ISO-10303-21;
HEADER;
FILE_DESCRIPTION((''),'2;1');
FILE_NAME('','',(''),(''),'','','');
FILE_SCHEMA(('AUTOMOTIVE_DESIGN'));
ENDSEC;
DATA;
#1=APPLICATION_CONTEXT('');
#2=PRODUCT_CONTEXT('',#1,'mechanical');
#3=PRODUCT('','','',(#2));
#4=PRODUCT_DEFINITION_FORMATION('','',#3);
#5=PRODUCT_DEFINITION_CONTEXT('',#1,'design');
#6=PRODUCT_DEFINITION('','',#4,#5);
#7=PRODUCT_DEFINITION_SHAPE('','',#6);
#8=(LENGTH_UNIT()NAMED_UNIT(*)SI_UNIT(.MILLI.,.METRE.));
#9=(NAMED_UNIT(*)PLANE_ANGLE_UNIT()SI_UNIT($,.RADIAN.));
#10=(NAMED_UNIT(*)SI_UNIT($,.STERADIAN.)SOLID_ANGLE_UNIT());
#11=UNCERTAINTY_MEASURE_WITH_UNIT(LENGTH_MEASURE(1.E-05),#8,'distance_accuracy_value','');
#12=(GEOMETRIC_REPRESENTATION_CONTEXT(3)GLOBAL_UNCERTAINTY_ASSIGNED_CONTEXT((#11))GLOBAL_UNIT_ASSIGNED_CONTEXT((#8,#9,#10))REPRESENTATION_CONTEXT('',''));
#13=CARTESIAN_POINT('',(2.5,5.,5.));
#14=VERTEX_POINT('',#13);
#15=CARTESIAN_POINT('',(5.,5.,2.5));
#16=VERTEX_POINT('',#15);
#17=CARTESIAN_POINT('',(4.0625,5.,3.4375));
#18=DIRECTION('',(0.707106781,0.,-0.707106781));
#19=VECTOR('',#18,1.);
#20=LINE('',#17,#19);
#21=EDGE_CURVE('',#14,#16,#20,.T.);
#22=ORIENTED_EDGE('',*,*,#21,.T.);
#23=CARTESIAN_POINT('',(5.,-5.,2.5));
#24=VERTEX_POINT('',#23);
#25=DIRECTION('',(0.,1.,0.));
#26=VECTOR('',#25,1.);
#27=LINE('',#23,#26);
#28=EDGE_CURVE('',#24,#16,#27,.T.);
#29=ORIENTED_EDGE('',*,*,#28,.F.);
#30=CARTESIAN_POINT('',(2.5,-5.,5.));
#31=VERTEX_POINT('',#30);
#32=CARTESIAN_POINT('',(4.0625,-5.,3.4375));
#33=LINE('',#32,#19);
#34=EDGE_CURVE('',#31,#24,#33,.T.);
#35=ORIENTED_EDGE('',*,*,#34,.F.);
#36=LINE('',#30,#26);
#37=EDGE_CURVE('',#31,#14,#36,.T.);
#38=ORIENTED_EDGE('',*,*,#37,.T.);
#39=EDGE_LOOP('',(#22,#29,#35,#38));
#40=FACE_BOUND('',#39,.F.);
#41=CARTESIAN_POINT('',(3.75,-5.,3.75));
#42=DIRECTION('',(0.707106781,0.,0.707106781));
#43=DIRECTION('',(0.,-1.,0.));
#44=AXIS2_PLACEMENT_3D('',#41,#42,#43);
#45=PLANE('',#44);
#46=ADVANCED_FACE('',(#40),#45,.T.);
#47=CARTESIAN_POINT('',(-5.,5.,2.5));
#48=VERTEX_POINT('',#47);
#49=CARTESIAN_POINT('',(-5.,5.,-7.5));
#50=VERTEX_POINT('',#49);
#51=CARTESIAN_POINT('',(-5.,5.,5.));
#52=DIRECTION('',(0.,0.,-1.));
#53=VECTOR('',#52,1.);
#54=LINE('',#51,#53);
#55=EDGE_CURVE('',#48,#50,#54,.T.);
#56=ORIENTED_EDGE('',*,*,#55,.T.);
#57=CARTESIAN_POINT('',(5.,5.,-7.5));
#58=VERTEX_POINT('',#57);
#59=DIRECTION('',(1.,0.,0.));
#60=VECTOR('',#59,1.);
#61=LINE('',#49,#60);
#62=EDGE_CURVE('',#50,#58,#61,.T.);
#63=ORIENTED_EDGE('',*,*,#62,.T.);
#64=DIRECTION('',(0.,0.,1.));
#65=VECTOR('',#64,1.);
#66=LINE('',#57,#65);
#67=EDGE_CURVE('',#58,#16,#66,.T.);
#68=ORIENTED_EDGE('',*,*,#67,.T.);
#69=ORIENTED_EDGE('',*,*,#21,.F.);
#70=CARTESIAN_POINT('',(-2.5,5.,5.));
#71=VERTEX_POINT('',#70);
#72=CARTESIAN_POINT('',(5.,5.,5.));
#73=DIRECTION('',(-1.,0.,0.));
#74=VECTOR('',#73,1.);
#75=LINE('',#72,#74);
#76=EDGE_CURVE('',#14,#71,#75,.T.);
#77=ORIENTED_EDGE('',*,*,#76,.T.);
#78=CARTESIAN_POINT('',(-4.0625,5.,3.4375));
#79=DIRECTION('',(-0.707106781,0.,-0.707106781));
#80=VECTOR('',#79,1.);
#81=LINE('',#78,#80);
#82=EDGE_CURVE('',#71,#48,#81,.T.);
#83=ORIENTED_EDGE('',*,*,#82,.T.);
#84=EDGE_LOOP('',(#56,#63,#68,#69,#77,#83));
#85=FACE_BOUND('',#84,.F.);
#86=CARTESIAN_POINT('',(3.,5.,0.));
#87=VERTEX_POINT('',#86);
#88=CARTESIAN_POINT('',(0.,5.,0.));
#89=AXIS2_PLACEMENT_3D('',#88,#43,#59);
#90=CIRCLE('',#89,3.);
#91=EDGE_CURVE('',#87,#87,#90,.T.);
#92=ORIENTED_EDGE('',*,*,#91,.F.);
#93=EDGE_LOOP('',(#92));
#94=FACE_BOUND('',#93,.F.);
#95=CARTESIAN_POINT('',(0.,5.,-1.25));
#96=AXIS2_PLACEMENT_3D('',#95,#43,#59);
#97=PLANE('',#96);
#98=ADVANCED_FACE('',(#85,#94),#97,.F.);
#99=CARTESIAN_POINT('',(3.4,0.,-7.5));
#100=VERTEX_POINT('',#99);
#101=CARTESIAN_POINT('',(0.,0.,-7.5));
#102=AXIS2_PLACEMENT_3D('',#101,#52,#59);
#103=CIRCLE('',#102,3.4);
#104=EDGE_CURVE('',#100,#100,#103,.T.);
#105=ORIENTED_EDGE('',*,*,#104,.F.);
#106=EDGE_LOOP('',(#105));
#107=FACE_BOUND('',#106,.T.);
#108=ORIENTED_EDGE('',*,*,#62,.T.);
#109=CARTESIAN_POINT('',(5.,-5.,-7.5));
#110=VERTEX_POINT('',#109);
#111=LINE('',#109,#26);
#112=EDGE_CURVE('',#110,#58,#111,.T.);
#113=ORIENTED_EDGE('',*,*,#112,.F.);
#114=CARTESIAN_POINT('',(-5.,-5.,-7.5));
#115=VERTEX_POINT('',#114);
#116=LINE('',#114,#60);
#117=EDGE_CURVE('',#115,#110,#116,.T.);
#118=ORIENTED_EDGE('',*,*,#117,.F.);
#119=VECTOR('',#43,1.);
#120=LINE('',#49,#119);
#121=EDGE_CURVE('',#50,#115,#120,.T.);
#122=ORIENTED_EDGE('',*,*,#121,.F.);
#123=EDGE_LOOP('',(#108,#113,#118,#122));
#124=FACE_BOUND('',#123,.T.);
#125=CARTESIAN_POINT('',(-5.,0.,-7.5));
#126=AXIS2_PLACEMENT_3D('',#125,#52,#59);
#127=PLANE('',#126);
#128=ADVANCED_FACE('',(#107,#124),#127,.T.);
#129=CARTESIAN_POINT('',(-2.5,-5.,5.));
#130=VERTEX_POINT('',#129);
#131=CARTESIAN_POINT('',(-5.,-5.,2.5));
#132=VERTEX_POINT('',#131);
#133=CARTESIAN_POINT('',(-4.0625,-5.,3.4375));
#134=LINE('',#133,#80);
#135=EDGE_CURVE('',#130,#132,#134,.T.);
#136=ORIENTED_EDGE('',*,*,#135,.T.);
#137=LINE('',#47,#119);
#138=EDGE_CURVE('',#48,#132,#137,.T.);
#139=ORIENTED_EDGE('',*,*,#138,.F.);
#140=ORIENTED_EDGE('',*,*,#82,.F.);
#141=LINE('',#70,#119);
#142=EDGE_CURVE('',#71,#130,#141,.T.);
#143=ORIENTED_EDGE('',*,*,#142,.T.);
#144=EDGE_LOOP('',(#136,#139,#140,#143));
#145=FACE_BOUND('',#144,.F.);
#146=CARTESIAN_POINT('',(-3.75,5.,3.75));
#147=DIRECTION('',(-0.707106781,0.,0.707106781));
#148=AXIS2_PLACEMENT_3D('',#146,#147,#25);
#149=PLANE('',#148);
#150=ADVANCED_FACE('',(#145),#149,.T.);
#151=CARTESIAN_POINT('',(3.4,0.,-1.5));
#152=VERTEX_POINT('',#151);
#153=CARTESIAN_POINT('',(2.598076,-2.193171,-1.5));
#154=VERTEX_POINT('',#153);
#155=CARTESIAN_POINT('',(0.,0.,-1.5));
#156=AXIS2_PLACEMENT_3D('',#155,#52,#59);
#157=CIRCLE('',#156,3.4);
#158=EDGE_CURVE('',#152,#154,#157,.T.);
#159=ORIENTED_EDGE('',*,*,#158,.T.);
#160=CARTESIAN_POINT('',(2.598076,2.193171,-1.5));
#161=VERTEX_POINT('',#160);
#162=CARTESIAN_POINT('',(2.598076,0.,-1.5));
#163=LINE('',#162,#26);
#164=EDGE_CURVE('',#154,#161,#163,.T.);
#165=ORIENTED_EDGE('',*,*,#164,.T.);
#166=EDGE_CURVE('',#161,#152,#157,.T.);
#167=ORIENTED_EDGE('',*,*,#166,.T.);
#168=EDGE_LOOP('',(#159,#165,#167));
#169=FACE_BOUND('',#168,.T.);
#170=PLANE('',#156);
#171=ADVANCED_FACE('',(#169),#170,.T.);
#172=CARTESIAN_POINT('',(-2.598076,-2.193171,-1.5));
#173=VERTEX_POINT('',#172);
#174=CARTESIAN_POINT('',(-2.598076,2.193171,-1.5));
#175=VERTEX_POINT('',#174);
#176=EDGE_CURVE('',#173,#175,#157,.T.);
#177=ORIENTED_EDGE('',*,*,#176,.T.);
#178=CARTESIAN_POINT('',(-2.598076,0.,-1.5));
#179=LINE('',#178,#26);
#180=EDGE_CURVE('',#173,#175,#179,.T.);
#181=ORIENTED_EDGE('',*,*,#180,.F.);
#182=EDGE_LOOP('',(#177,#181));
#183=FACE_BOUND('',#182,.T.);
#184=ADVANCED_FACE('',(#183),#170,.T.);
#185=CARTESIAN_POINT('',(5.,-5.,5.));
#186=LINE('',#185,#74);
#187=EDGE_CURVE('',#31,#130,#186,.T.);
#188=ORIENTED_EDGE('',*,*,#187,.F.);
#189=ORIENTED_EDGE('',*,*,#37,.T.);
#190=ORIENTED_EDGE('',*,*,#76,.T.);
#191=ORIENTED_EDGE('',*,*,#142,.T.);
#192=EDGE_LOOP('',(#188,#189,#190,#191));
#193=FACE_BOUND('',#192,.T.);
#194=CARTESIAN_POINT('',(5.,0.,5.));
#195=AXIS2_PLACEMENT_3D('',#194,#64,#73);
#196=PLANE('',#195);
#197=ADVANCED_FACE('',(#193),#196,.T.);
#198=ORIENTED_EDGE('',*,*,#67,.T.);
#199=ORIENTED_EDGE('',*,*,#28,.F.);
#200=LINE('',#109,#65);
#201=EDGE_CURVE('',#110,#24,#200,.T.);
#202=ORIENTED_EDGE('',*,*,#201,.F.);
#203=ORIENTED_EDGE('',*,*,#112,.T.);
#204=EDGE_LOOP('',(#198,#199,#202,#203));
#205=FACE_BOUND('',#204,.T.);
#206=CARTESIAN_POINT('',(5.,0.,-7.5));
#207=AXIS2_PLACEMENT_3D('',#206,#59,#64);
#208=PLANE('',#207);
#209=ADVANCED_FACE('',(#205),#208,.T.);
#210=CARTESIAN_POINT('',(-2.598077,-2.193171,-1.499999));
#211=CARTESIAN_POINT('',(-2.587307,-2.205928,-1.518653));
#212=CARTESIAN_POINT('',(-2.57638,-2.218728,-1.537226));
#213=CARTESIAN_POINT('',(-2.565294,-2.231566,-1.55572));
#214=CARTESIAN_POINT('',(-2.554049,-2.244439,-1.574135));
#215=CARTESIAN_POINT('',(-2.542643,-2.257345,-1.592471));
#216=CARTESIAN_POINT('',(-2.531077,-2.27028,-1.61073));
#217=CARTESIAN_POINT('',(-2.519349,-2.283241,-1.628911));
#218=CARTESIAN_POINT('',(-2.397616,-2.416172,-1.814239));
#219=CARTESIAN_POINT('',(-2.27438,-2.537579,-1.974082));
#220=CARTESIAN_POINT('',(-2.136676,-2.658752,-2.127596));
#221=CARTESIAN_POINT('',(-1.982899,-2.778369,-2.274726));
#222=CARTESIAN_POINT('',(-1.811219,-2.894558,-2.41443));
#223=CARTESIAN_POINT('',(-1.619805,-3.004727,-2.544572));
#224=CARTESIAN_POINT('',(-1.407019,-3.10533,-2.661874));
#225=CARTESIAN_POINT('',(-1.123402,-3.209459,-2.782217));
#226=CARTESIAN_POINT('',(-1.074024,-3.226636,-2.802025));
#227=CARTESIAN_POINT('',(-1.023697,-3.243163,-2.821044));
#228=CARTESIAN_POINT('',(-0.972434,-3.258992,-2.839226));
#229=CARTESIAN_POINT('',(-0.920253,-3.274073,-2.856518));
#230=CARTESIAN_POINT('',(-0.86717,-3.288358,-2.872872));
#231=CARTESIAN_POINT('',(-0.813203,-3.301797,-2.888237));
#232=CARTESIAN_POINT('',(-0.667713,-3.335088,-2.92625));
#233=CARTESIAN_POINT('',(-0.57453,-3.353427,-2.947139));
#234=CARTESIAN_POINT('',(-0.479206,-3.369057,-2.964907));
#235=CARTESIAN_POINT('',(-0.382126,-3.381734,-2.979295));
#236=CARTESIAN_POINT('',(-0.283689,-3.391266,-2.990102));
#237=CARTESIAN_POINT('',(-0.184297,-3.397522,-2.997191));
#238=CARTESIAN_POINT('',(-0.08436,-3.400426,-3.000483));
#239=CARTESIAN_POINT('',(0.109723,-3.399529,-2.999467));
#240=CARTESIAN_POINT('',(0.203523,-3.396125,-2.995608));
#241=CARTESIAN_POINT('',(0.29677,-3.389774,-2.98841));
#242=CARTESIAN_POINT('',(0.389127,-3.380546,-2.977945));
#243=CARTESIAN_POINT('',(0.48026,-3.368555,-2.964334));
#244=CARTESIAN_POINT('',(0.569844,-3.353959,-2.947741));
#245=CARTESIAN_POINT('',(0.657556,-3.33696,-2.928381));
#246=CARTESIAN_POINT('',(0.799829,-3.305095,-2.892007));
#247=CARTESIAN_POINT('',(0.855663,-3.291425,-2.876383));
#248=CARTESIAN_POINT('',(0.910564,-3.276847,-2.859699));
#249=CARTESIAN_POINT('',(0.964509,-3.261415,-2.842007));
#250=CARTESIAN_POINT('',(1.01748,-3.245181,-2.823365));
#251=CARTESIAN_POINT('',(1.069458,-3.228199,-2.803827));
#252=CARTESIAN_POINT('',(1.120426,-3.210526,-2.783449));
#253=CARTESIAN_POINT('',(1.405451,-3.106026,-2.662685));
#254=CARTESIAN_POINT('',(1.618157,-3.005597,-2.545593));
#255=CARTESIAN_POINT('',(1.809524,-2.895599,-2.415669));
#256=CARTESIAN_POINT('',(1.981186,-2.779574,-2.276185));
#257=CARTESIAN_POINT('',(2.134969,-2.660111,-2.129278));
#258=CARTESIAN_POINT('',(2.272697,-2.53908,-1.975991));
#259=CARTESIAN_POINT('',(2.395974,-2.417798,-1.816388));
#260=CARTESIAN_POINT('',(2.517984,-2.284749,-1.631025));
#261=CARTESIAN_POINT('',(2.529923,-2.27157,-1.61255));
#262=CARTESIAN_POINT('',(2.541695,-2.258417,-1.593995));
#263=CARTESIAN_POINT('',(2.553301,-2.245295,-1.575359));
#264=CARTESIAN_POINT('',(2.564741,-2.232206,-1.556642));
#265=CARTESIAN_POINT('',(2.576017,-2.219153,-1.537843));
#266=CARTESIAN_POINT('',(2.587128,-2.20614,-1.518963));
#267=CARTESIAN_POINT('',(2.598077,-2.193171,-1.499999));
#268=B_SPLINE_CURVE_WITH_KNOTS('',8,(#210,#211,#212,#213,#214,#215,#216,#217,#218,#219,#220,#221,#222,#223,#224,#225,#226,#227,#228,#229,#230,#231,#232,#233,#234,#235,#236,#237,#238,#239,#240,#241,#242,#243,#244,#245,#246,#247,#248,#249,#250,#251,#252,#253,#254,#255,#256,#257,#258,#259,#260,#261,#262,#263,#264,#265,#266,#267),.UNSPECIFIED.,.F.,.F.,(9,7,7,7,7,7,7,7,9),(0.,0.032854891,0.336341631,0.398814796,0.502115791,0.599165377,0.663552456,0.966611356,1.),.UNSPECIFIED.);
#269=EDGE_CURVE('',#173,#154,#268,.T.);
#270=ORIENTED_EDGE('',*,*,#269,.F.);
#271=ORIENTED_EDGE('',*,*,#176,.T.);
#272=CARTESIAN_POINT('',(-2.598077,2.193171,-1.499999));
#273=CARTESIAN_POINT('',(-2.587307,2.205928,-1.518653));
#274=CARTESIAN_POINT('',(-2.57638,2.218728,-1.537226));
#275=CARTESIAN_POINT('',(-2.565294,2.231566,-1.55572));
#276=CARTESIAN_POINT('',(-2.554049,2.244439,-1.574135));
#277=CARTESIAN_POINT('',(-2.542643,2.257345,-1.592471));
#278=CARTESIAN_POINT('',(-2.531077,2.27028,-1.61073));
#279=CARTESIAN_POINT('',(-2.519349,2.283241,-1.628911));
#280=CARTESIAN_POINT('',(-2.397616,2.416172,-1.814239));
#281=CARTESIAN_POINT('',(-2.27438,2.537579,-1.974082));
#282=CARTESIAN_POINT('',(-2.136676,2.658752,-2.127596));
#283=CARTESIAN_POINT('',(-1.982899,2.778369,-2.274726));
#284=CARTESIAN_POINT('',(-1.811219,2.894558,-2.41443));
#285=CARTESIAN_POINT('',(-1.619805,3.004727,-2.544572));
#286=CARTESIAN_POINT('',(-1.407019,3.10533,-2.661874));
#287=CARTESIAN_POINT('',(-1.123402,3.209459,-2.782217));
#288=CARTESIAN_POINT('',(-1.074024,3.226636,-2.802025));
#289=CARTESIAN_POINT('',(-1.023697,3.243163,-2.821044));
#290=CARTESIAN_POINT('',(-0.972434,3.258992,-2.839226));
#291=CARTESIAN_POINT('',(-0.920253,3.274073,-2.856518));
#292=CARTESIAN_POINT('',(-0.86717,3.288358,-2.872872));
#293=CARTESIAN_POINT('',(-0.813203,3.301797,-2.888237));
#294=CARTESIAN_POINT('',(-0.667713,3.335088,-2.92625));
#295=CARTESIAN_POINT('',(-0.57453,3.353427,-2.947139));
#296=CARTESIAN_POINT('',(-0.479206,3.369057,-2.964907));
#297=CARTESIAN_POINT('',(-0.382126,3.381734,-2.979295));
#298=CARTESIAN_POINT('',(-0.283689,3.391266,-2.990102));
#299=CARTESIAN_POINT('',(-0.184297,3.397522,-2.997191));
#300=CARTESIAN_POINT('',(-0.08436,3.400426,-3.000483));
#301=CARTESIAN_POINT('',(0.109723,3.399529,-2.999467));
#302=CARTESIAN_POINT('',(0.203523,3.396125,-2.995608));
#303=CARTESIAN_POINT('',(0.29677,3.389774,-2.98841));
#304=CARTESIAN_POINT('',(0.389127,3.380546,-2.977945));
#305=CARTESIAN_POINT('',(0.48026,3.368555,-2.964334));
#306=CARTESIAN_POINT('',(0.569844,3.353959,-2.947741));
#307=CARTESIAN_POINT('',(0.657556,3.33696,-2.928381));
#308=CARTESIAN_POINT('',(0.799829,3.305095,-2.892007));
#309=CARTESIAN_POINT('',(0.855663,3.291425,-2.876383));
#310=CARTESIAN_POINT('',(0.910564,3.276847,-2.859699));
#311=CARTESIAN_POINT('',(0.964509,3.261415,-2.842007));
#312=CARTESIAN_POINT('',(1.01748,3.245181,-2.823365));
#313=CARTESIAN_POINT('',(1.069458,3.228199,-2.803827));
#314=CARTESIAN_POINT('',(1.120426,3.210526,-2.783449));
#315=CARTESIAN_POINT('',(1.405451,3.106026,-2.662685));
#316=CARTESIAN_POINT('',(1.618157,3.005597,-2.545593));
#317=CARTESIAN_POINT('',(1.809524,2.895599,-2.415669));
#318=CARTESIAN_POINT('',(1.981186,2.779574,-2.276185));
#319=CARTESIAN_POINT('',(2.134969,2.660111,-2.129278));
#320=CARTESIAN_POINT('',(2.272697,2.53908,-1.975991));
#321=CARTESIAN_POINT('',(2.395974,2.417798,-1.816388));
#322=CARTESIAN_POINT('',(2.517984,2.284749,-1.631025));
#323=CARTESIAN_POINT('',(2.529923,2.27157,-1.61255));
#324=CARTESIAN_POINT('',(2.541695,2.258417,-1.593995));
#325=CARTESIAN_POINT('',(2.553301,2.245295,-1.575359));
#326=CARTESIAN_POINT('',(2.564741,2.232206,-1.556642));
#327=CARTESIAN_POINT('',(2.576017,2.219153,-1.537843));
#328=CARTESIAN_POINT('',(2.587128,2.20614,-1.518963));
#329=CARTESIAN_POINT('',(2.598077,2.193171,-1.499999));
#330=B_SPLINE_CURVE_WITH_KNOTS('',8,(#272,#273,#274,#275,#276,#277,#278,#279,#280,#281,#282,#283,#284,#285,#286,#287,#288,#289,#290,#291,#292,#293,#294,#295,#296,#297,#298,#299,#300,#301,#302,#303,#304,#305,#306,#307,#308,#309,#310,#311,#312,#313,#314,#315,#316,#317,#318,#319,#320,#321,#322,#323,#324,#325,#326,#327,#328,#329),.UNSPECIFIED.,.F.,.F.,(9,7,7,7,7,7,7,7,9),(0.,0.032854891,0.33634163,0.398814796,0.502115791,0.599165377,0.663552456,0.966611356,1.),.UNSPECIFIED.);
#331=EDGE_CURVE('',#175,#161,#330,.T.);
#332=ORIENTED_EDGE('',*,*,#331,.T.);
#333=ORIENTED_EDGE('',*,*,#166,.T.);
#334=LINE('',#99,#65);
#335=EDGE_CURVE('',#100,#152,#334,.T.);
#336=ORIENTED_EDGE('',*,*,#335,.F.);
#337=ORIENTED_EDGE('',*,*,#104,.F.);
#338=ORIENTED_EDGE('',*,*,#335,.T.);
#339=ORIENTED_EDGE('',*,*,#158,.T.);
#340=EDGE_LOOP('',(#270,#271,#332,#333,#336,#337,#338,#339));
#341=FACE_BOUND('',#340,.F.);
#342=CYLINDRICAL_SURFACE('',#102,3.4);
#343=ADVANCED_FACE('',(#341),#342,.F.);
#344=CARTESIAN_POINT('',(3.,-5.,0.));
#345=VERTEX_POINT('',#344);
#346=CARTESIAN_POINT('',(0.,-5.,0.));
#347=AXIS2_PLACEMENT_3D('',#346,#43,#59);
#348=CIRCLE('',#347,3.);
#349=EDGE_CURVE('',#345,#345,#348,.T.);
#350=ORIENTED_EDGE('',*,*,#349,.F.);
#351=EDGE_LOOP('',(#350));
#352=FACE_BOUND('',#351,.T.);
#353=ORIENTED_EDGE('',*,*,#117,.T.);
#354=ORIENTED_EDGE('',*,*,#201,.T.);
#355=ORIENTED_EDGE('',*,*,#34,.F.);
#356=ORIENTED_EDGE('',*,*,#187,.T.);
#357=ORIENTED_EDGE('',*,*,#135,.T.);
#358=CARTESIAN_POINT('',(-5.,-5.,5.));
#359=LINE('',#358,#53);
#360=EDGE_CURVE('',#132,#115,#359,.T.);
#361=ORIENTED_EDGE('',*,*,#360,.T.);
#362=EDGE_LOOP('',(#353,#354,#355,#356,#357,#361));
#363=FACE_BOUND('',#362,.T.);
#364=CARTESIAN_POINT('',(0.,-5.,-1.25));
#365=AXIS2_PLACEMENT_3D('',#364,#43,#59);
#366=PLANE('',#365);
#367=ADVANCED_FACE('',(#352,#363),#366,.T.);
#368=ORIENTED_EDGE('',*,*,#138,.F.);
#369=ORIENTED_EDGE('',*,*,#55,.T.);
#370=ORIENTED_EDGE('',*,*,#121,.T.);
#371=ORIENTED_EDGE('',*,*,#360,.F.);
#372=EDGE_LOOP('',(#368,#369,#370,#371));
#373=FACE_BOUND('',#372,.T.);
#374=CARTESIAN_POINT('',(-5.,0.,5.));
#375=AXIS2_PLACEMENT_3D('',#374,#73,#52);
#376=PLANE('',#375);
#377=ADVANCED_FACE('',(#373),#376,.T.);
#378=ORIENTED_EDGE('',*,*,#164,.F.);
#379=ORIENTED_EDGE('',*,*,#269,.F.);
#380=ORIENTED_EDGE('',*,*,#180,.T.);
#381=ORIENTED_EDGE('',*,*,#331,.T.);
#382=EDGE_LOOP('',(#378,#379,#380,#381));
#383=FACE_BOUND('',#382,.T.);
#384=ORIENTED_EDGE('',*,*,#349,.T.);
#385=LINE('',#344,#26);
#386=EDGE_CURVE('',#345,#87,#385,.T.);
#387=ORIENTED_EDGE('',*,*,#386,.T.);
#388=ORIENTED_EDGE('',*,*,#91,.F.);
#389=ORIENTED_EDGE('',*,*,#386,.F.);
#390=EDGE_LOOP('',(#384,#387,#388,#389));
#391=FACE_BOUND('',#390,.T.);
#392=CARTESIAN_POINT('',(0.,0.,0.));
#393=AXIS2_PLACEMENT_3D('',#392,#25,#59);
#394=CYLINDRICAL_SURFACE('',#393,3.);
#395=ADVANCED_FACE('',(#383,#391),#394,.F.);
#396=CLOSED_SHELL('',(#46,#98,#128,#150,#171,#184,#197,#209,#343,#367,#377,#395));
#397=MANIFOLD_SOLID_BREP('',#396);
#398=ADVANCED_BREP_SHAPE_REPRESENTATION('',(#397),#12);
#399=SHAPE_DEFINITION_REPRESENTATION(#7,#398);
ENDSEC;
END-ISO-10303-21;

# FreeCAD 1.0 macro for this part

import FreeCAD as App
import Part
import Sketcher


def edges_at(feature, points):
    """Names of the edges that pass closest to the given points."""
    edges = feature.Shape.Edges
    near = lambda p: min(range(len(edges)), key=lambda i: edges[i].distToShape(Part.Vertex(*p))[0])
    return sorted({f"Edge{near(p) + 1}" for p in points})


def add_polygon(sketch, points):
    """Adds a closed chain of lines whose ends are joined by coincident constraints."""
    first, n = sketch.GeometryCount, len(points)
    for a, b in zip(points, points[1:] + points[:1]):
        sketch.addGeometry(Part.LineSegment(App.Vector(*a, 0), App.Vector(*b, 0)), False)
    for i in range(n):
        sketch.addConstraint(Sketcher.Constraint("Coincident", first + i, 2, first + (i + 1) % n, 1))

doc = App.newDocument("Part")
body = doc.addObject("PartDesign::Body", "Body")

# Sketch on XZ plane
sketch1 = body.newObject("Sketcher::SketchObject", "Sketch")
sketch1.AttachmentSupport = (doc.getObject("XZ_Plane"), [""])
sketch1.MapMode = "FlatFace"
add_polygon(sketch1, [(5, 5), (-5, 5), (-5, -7.5), (5, -7.5)])  # lines 0-3
sketch1.addGeometry(Part.Circle(App.Vector(0, 0, 0), App.Vector(0, 0, 1), 3), False)  # 4
sketch1.addConstraint([
    Sketcher.Constraint("Horizontal", 0),
    Sketcher.Constraint("Vertical", 1),
    Sketcher.Constraint("Horizontal", 2),
    Sketcher.Constraint("Vertical", 3),
    Sketcher.Constraint("Coincident", 4, 3, -1, 1),
    Sketcher.Constraint("Diameter", 4, 6.0),
    Sketcher.Constraint("DistanceX", 0, 2, 0, 1, 10.0),
    Sketcher.Constraint("DistanceY", 1, 2, 1, 1, 12.5),
    Sketcher.Constraint("DistanceX", 0, 2, -1, 1, 5.0),
    Sketcher.Constraint("DistanceY", -1, 1, 0, 2, 5.0),
])
pad1 = body.newObject("PartDesign::Pad", "Pad")
pad1.Profile = sketch1
pad1.Length = 10
pad1.Midplane = True

# Sketch on XY plane
sketch2 = body.newObject("Sketcher::SketchObject", "Sketch001")
sketch2.AttachmentSupport = (doc.getObject("XY_Plane"), [""])
sketch2.MapMode = "FlatFace"
sketch2.AttachmentOffset = App.Placement(App.Vector(0, 0, -7.5), App.Rotation())
sketch2.addGeometry(Part.Circle(App.Vector(0, 0, 0), App.Vector(0, 0, 1), 3.4), False)
sketch2.addConstraint([
    Sketcher.Constraint("Coincident", 0, 3, -1, 1),
    Sketcher.Constraint("Diameter", 0, 6.8),
])
pocket1 = body.newObject("PartDesign::Pocket", "Pocket")
pocket1.Profile = sketch2
pocket1.Length = 6
pocket1.Reversed = True
doc.recompute()

chamfer = body.newObject("PartDesign::Chamfer", "Chamfer")
chamfer.Base = (pocket1, edges_at(pocket1, [(-5, 0, 5), (5, 0, 5)]))
chamfer.Size = 2.5

doc.recompute()
